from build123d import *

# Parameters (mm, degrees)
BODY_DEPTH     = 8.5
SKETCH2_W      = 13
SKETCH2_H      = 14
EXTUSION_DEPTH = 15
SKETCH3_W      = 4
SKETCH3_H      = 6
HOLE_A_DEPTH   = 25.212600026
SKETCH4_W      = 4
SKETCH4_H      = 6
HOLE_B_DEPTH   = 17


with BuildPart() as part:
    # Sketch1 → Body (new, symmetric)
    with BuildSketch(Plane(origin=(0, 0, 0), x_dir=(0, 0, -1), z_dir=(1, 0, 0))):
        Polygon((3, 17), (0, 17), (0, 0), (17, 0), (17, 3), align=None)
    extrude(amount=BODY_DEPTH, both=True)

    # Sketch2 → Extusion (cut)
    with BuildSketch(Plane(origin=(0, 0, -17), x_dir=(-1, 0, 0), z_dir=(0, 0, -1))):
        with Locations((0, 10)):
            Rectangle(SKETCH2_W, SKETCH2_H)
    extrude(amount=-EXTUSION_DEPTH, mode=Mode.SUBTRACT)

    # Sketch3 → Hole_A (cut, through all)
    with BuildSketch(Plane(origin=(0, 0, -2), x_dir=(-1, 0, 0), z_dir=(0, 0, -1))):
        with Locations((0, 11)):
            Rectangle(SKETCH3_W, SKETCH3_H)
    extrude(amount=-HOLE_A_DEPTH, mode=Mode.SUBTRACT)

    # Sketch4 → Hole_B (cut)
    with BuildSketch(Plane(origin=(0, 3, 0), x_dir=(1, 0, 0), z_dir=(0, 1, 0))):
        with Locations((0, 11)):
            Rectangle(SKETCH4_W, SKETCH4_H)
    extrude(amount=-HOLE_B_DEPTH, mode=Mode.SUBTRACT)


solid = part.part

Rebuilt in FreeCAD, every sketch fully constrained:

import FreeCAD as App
import Part
import Sketcher
from FreeCAD import Vector
Q = App.Units.Quantity


def add_polygon(sketch, points):
    """Adds a closed chain of lines whose ends are joined by coincident constraints."""
    first, n = sketch.GeometryCount, len(points)
    for a, b in zip(points, points[1:] + points[:1]):
        sketch.addGeometry(Part.LineSegment(App.Vector(*a, 0), App.Vector(*b, 0)), False)
    for i in range(n):
        sketch.addConstraint(Sketcher.Constraint("Coincident", first + i, 2, first + (i + 1) % n, 1))

doc = App.newDocument("Part")
body = doc.addObject("PartDesign::Body", "Body")

sketch1 = doc.addObject("Sketcher::SketchObject", "Sketch")
body.addObject(sketch1)
sketch1.AttachmentSupport = (doc.YZ_Plane, [""])
sketch1.MapMode = "FlatFace"
add_polygon(sketch1, [(17, -3), (17, 0), (0, 0), (0, -17), (3, -17)])
sketch1.addConstraint([
    Sketcher.Constraint("Vertical", 0),
    Sketcher.Constraint("Horizontal", 1),
    Sketcher.Constraint("Vertical", 2),
    Sketcher.Constraint("Horizontal", 3),
    Sketcher.Constraint("Coincident", 1, 2, -1, 1),
    Sketcher.Constraint("Equal", 3, 0),
    Sketcher.Constraint("Equal", 1, 2),
    Sketcher.Constraint("DistanceX", 1, 2, 1, 1, Q("17 mm")),
    Sketcher.Constraint("DistanceX", 3, 1, 3, 2, Q("3 mm")),
])
pad1 = doc.addObject("PartDesign::Pad", "Pad")
body.addObject(pad1)
pad1.Profile = sketch1
pad1.Length = 17
pad1.Midplane = True

sketch2 = doc.addObject("Sketcher::SketchObject", "Sketch001")
body.addObject(sketch2)
sketch2.AttachmentSupport = (doc.XY_Plane, [""])
sketch2.MapMode = "FlatFace"
sketch2.AttachmentOffset = App.Placement(Vector(0, 0, -17), App.Rotation())
add_polygon(sketch2, [(6, 17), (6, 3), (-6, 3), (-6, 17)])
sketch2.addConstraint([
    Sketcher.Constraint("Vertical", 0),
    Sketcher.Constraint("Horizontal", 1),
    Sketcher.Constraint("Vertical", 2),
    Sketcher.Constraint("Horizontal", 3),
    Sketcher.Constraint("DistanceX", 1, 2, 1, 1, Q("13 mm")),
    Sketcher.Constraint("DistanceY", 0, 2, 0, 1, Q("14 mm")),
    Sketcher.Constraint("DistanceY", -1, 1, 0, 2, Q("3 mm")),
    Sketcher.Constraint("DistanceX", -1, 1, 0, 2, Q("6.5 mm")),
])
pocket1 = doc.addObject("PartDesign::Pocket", "Pocket")
body.addObject(pocket1)
pocket1.Profile = sketch2
pocket1.Length = 15
pocket1.Reversed = True

sketch3 = doc.addObject("Sketcher::SketchObject", "Sketch002")
body.addObject(sketch3)
sketch3.AttachmentSupport = (doc.XY_Plane, [""])
sketch3.MapMode = "FlatFace"
sketch3.AttachmentOffset = App.Placement(Vector(0, 0, -2), App.Rotation())
add_polygon(sketch3, [(2, 14), (2, 8), (-2, 8), (-2, 14)])
sketch3.addConstraint([
    Sketcher.Constraint("Vertical", 0),
    Sketcher.Constraint("Horizontal", 1),
    Sketcher.Constraint("Vertical", 2),
    Sketcher.Constraint("Horizontal", 3),
    Sketcher.Constraint("DistanceX", 1, 2, 1, 1, Q("4 mm")),
    Sketcher.Constraint("DistanceY", 0, 2, 0, 1, Q("6 mm")),
    Sketcher.Constraint("DistanceX", -1, 1, 0, 2, Q("2 mm")),
    Sketcher.Constraint("DistanceY", -1, 1, 0, 2, Q("8 mm")),
])
pocket2 = doc.addObject("PartDesign::Pocket", "Pocket001")
body.addObject(pocket2)
pocket2.Profile = sketch3
pocket2.Type = "ThroughAll"
pocket2.Reversed = True

sketch4 = doc.addObject("Sketcher::SketchObject", "Sketch003")
body.addObject(sketch4)
sketch4.AttachmentSupport = (doc.XZ_Plane, [""])
sketch4.MapMode = "FlatFace"
sketch4.AttachmentOffset = App.Placement(Vector(0, 0, -3), App.Rotation())
add_polygon(sketch4, [(-2, -14), (-2, -8), (2, -8), (2, -14)])
sketch4.addConstraint([
    Sketcher.Constraint("Vertical", 0),
    Sketcher.Constraint("Horizontal", 1),
    Sketcher.Constraint("Vertical", 2),
    Sketcher.Constraint("Horizontal", 3),
    Sketcher.Constraint("DistanceX", 1, 1, 1, 2, Q("4 mm")),
    Sketcher.Constraint("DistanceY", 0, 1, 0, 2, Q("6 mm")),
    Sketcher.Constraint("DistanceX", 0, 2, -1, 1, Q("2 mm")),
    Sketcher.Constraint("DistanceY", 0, 2, -1, 1, Q("8 mm")),
])
pocket3 = doc.addObject("PartDesign::Pocket", "Pocket002")
body.addObject(pocket3)
pocket3.Profile = sketch4
pocket3.Length = 17
pocket3.Reversed = True

doc.recompute()
